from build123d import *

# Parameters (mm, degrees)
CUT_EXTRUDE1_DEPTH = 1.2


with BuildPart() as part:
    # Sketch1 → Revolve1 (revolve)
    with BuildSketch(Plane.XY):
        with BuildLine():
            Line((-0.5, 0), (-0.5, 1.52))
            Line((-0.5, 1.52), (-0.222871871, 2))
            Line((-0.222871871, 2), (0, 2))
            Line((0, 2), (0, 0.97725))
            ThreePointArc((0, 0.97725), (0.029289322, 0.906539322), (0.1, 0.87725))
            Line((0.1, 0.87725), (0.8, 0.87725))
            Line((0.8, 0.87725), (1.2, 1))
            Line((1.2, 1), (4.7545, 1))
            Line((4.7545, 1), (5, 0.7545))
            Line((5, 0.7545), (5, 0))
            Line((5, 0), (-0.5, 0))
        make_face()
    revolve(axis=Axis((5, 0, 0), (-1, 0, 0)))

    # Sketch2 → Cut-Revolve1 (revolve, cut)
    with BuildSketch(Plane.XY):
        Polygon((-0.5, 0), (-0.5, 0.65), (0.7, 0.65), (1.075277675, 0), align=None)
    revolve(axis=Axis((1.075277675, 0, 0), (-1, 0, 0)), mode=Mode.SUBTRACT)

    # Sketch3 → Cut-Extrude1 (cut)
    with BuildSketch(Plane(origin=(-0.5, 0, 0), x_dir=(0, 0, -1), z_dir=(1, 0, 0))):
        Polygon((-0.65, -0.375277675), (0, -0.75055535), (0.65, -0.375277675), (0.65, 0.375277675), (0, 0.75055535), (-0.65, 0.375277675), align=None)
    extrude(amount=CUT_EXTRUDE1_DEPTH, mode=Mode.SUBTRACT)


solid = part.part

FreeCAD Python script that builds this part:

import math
import FreeCAD as App
import Part
import Sketcher
Q = App.Units.Quantity


def add_polygon(sketch, points):
    """Adds a closed chain of lines whose ends are joined by coincident constraints."""
    first, n = sketch.GeometryCount, len(points)
    for a, b in zip(points, points[1:] + points[:1]):
        sketch.addGeometry(Part.LineSegment(App.Vector(*a, 0), App.Vector(*b, 0)), False)
    for i in range(n):
        sketch.addConstraint(Sketcher.Constraint("Coincident", first + i, 2, first + (i + 1) % n, 1))

doc = App.newDocument("Part")
body = doc.addObject("PartDesign::Body", "Body")

# Sketch on XY plane
sketch1 = body.newObject("Sketcher::SketchObject", "Sketch")
sketch1.AttachmentSupport = (doc.getObject("XY_Plane"), [""])
sketch1.MapMode = "FlatFace"
sketch1.addGeometry([
    Part.LineSegment(App.Vector(-0.5, 1.52, 0), App.Vector(-0.5, 0, 0)),  # 0
    Part.LineSegment(App.Vector(-0.5, 0, 0), App.Vector(5, 0, 0)),  # 1
    Part.LineSegment(App.Vector(5, 0, 0), App.Vector(5, 0.75, 0)),  # 2
    Part.LineSegment(App.Vector(5, 0.75, 0), App.Vector(4.75, 1, 0)),  # 3
    Part.LineSegment(App.Vector(4.75, 1, 0), App.Vector(1.2, 1, 0)),  # 4
    Part.LineSegment(App.Vector(1.2, 1, 0), App.Vector(0.8, 0.88, 0)),  # 5
    Part.LineSegment(App.Vector(0.8, 0.88, 0), App.Vector(0.1, 0.88, 0)),  # 6
    Part.ArcOfCircle(Part.Circle(App.Vector(0.1, 0.98, 0), App.Vector(0, 0, 1), 0.1), math.radians(180), math.radians(270)),  # 7
    Part.LineSegment(App.Vector(0, 0.98, 0), App.Vector(0, 2, 0)),  # 8
    Part.LineSegment(App.Vector(0, 2, 0), App.Vector(-0.22, 2, 0)),  # 9
    Part.LineSegment(App.Vector(-0.22, 2, 0), App.Vector(-0.5, 1.52, 0)),  # 10
], False)
sketch1.addConstraint([
    Sketcher.Constraint("Coincident", 0, 2, 1, 1),
    Sketcher.Constraint("Coincident", 1, 2, 2, 1),
    Sketcher.Constraint("Coincident", 2, 2, 3, 1),
    Sketcher.Constraint("Coincident", 3, 2, 4, 1),
    Sketcher.Constraint("Coincident", 4, 2, 5, 1),
    Sketcher.Constraint("Coincident", 5, 2, 6, 1),
    Sketcher.Constraint("Tangent", 6, 2, 7, 2),
    Sketcher.Constraint("Tangent", 7, 1, 8, 1),
    Sketcher.Constraint("Coincident", 8, 2, 9, 1),
    Sketcher.Constraint("Coincident", 9, 2, 10, 1),
    Sketcher.Constraint("Coincident", 10, 2, 0, 1),
    Sketcher.Constraint("Vertical", 0),
    Sketcher.Constraint("Horizontal", 1),
    Sketcher.Constraint("Vertical", 2),
    Sketcher.Constraint("Horizontal", 4),
    Sketcher.Constraint("Horizontal", 6),
    Sketcher.Constraint("Vertical", 8),
    Sketcher.Constraint("Horizontal", 9),
    Sketcher.Constraint("PointOnObject", 0, 2, -1),
    Sketcher.Constraint("PointOnObject", 7, 1, -2),
    Sketcher.Constraint("Radius", 7, 0.1),
    Sketcher.Constraint("Angle", 3, Q("135 deg")),
    Sketcher.Constraint("Angle", 10, Q("-120 deg")),
    Sketcher.Constraint("DistanceX", 1, 1, 1, 2, 5.5),
    Sketcher.Constraint("DistanceX", 6, 2, 6, 1, 0.7),
    Sketcher.Constraint("DistanceX", -1, 1, 1, 2, 5.0),
    Sketcher.Constraint("DistanceY", -1, 1, 3, 2, 1.0),
    Sketcher.Constraint("DistanceY", -1, 1, 8, 2, 2.0),
    Sketcher.Constraint("DistanceY", 0, 2, 0, 1, 1.52),
    Sketcher.Constraint("DistanceX", -1, 1, 4, 2, 1.2),
    Sketcher.Constraint("DistanceX", 4, 2, 4, 1, 3.5545),
    Sketcher.Constraint("DistanceY", 8, 1, 8, 2, 1.02275),
])
revolution = body.newObject("PartDesign::Revolution", "Revolution")
revolution.Profile = sketch1
revolution.ReferenceAxis = (sketch1, ["H_Axis"])
revolution.Angle = 360

# Sketch on XY plane
sketch2 = body.newObject("Sketcher::SketchObject", "Sketch001")
sketch2.AttachmentSupport = (doc.getObject("XY_Plane"), [""])
sketch2.MapMode = "FlatFace"
add_polygon(sketch2, [(-0.5, 0.7), (-0.5, 0), (1.1, 0), (0.7, 0.7)])  # lines 0-3
sketch2.addConstraint([
    Sketcher.Constraint("Vertical", 0),
    Sketcher.Constraint("Horizontal", 1),
    Sketcher.Constraint("Horizontal", 3),
    Sketcher.Constraint("PointOnObject", 0, 2, -1),
    Sketcher.Constraint("Angle", 2, Q("120 deg")),
    Sketcher.Constraint("DistanceX", 3, 2, 3, 1, 1.2),
    Sketcher.Constraint("DistanceY", 0, 2, 0, 1, 0.65),
    Sketcher.Constraint("DistanceX", 0, 2, -1, 1, 0.5),
])
groove = body.newObject("PartDesign::Groove", "Groove")
groove.Profile = sketch2
groove.ReferenceAxis = (sketch2, ["H_Axis"])
groove.Angle = 360

# Sketch on YZ plane
sketch3 = body.newObject("Sketcher::SketchObject", "Sketch002")
sketch3.AttachmentSupport = (doc.getObject("YZ_Plane"), [""])
sketch3.MapMode = "FlatFace"
sketch3.AttachmentOffset = App.Placement(App.Vector(0, 0, -0.5), App.Rotation())
add_polygon(sketch3, [(-0.4, 0.7), (-0.8, 0), (-0.4, -0.7), (0.4, -0.7), (0.8, 0), (0.4, 0.7)])  # lines 0-5
sketch3.addConstraint([
    Sketcher.Constraint("Horizontal", 2),
    Sketcher.Constraint("Horizontal", 5),
    Sketcher.Constraint("Symmetric", 0, 2, 3, 2, -1, 1),
    Sketcher.Constraint("Symmetric", 1, 2, 4, 2, -1, 1),
    Sketcher.Constraint("PointOnObject", 0, 2, -1),
    Sketcher.Constraint("Parallel", 0, 3),
    Sketcher.Constraint("Vertical", 2, 2, 4, 2),
    Sketcher.Constraint("Angle", 0, Q("-120 deg")),
    Sketcher.Constraint("DistanceY", 2, 2, 4, 2, 1.3),
    Sketcher.Constraint("DistanceX", 2, 1, 2, 2, 0.750555),
])
pocket1 = body.newObject("PartDesign::Pocket", "Pocket")
pocket1.Profile = sketch3
pocket1.Length = 1.2
pocket1.Reversed = True

doc.recompute()
